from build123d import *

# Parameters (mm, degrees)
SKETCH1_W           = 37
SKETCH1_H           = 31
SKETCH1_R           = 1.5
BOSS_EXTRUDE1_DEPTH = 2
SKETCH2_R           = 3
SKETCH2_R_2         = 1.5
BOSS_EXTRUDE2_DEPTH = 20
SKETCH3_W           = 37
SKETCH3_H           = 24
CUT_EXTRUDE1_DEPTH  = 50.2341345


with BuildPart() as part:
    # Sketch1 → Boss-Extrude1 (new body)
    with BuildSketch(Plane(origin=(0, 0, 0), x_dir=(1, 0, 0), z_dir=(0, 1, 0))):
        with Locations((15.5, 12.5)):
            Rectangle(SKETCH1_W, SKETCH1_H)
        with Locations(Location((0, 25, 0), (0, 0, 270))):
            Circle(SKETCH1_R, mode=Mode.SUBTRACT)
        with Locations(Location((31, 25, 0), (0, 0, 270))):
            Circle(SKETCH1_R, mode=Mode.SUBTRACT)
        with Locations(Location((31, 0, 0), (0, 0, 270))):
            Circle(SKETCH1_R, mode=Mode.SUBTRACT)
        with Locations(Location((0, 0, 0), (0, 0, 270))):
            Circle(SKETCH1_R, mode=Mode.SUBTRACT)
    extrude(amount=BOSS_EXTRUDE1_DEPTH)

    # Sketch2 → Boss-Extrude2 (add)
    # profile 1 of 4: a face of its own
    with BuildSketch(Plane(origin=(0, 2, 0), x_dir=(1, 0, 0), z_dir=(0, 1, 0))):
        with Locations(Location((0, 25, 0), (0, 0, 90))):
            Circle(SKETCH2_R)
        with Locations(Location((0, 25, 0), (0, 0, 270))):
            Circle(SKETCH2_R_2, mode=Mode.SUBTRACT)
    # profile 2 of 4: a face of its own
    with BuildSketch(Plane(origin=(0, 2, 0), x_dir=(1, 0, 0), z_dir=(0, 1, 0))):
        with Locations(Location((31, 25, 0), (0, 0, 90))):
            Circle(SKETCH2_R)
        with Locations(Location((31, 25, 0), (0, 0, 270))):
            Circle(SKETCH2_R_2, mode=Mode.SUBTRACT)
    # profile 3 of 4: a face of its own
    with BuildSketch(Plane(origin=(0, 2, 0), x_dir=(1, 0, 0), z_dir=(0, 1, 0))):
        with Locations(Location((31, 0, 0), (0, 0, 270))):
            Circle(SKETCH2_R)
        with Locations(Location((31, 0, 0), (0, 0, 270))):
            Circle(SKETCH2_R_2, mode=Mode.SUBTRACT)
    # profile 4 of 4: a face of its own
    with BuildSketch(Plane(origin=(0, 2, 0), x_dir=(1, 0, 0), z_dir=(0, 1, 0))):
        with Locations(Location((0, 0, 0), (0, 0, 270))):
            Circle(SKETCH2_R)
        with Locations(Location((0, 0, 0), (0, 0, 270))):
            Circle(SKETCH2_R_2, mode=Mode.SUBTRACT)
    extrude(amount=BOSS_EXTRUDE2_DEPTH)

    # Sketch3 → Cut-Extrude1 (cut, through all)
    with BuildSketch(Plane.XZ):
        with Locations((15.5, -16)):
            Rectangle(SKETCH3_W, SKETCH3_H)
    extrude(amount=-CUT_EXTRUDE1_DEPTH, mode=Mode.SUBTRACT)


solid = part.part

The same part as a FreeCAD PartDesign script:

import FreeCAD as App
import Part
import Sketcher


def add_polygon(sketch, points):
    """Adds a closed chain of lines whose ends are joined by coincident constraints."""
    first, n = sketch.GeometryCount, len(points)
    for a, b in zip(points, points[1:] + points[:1]):
        sketch.addGeometry(Part.LineSegment(App.Vector(*a, 0), App.Vector(*b, 0)), False)
    for i in range(n):
        sketch.addConstraint(Sketcher.Constraint("Coincident", first + i, 2, first + (i + 1) % n, 1))

doc = App.newDocument("Part")
body = doc.addObject("PartDesign::Body", "Body")

sketch1 = body.newObject("Sketcher::SketchObject", "Sketch")
sketch1.AttachmentSupport = (doc.getObject("XZ_Plane"), [""])
sketch1.MapMode = "FlatFace"
add_polygon(sketch1, [(-3, -28), (-3, 3), (34, 3), (34, -28)])
sketch1.addGeometry(Part.Circle(App.Vector(0, 0, 0), App.Vector(0, 0, 1), 1.5), False)
sketch1.addGeometry(Part.Circle(App.Vector(31, 0, 0), App.Vector(0, 0, 1), 1.5), False)
sketch1.addGeometry(Part.Circle(App.Vector(0, -25, 0), App.Vector(0, 0, 1), 1.5), False)
sketch1.addGeometry(Part.Circle(App.Vector(31, -25, 0), App.Vector(0, 0, 1), 1.5), False)
sketch1.addConstraint([
    Sketcher.Constraint("Vertical", 0),
    Sketcher.Constraint("Horizontal", 1),
    Sketcher.Constraint("Vertical", 2),
    Sketcher.Constraint("Horizontal", 3),
    Sketcher.Constraint("Coincident", 4, 3, -1, 1),
    Sketcher.Constraint("Equal", 4, 5),
    Sketcher.Constraint("Equal", 5, 6),
    Sketcher.Constraint("Equal", 6, 7),
    Sketcher.Constraint("PointOnObject", 5, 3, -1),
    Sketcher.Constraint("PointOnObject", 6, 3, -2),
    Sketcher.Constraint("Horizontal", 6, 3, 7, 3),
    Sketcher.Constraint("Vertical", 5, 3, 7, 3),
    Sketcher.Constraint("Diameter", 4, 3.0),
    Sketcher.Constraint("DistanceX", 1, 1, 1, 2, 37.0),
    Sketcher.Constraint("DistanceY", 0, 1, 0, 2, 31.0),
    Sketcher.Constraint("DistanceX", -1, 1, 5, 3, 31.0),
    Sketcher.Constraint("DistanceY", 6, 3, -1, 1, 25.0),
    Sketcher.Constraint("DistanceX", 0, 2, -1, 1, 3.0),
    Sketcher.Constraint("DistanceY", -1, 1, 0, 2, 3.0),
])
pad1 = body.newObject("PartDesign::Pad", "Pad")
pad1.Profile = sketch1
pad1.Length = 2
pad1.Reversed = True

sketch2 = body.newObject("Sketcher::SketchObject", "Sketch001")
sketch2.AttachmentSupport = (doc.getObject("XZ_Plane"), [""])
sketch2.MapMode = "FlatFace"
sketch2.AttachmentOffset = App.Placement(App.Vector(0, 0, -2), App.Rotation())
sketch2.addGeometry([
    Part.Circle(App.Vector(0, -25, 0), App.Vector(0, 0, 1), 3),
    Part.Circle(App.Vector(0, -25, 0), App.Vector(0, 0, 1), 1.5),
    Part.Circle(App.Vector(31, -25, 0), App.Vector(0, 0, 1), 3),
    Part.Circle(App.Vector(31, -25, 0), App.Vector(0, 0, 1), 1.5),
    Part.Circle(App.Vector(31, 0, 0), App.Vector(0, 0, 1), 3),
    Part.Circle(App.Vector(31, 0, 0), App.Vector(0, 0, 1), 1.5),
    Part.Circle(App.Vector(0, 0, 0), App.Vector(0, 0, 1), 3),
    Part.Circle(App.Vector(0, 0, 0), App.Vector(0, 0, 1), 1.5),
], False)
sketch2.addConstraint([
    Sketcher.Constraint("Coincident", 6, 3, -1, 1),
    Sketcher.Constraint("Coincident", 7, 3, -1, 1),
    Sketcher.Constraint("Coincident", 1, 3, 0, 3),
    Sketcher.Constraint("Coincident", 3, 3, 2, 3),
    Sketcher.Constraint("Coincident", 5, 3, 4, 3),
    Sketcher.Constraint("Equal", 0, 2),
    Sketcher.Constraint("Equal", 1, 3),
    Sketcher.Constraint("Equal", 2, 4),
    Sketcher.Constraint("Equal", 3, 5),
    Sketcher.Constraint("Equal", 4, 6),
    Sketcher.Constraint("Equal", 5, 7),
    Sketcher.Constraint("PointOnObject", 0, 3, -2),
    Sketcher.Constraint("PointOnObject", 4, 3, -1),
    Sketcher.Constraint("Horizontal", 1, 3, 2, 3),
    Sketcher.Constraint("Vertical", 3, 3, 4, 3),
    Sketcher.Constraint("Diameter", 0, 6.0),
    Sketcher.Constraint("Diameter", 1, 3.0),
    Sketcher.Constraint("DistanceY", 0, 3, -1, 1, 25.0),
    Sketcher.Constraint("DistanceX", -1, 1, 2, 3, 31.0),
])
pad2 = body.newObject("PartDesign::Pad", "Pad001")
pad2.Profile = sketch2
pad2.Length = 20
pad2.Reversed = True

sketch3 = body.newObject("Sketcher::SketchObject", "Sketch002")
sketch3.AttachmentSupport = (doc.getObject("XZ_Plane"), [""])
sketch3.MapMode = "FlatFace"
add_polygon(sketch3, [(-3, -4), (-3, -28), (34, -28), (34, -4)])
sketch3.addConstraint([
    Sketcher.Constraint("Vertical", 0),
    Sketcher.Constraint("Horizontal", 1),
    Sketcher.Constraint("Vertical", 2),
    Sketcher.Constraint("Horizontal", 3),
    Sketcher.Constraint("DistanceX", 1, 1, 1, 2, 37.0),
    Sketcher.Constraint("DistanceY", 0, 2, 0, 1, 24.0),
    Sketcher.Constraint("DistanceX", 0, 2, -1, 1, 3.0),
    Sketcher.Constraint("DistanceY", 0, 2, -1, 1, 28.0),
])
pocket1 = body.newObject("PartDesign::Pocket", "Pocket")
pocket1.Profile = sketch3
pocket1.Type = "ThroughAll"

doc.recompute()
